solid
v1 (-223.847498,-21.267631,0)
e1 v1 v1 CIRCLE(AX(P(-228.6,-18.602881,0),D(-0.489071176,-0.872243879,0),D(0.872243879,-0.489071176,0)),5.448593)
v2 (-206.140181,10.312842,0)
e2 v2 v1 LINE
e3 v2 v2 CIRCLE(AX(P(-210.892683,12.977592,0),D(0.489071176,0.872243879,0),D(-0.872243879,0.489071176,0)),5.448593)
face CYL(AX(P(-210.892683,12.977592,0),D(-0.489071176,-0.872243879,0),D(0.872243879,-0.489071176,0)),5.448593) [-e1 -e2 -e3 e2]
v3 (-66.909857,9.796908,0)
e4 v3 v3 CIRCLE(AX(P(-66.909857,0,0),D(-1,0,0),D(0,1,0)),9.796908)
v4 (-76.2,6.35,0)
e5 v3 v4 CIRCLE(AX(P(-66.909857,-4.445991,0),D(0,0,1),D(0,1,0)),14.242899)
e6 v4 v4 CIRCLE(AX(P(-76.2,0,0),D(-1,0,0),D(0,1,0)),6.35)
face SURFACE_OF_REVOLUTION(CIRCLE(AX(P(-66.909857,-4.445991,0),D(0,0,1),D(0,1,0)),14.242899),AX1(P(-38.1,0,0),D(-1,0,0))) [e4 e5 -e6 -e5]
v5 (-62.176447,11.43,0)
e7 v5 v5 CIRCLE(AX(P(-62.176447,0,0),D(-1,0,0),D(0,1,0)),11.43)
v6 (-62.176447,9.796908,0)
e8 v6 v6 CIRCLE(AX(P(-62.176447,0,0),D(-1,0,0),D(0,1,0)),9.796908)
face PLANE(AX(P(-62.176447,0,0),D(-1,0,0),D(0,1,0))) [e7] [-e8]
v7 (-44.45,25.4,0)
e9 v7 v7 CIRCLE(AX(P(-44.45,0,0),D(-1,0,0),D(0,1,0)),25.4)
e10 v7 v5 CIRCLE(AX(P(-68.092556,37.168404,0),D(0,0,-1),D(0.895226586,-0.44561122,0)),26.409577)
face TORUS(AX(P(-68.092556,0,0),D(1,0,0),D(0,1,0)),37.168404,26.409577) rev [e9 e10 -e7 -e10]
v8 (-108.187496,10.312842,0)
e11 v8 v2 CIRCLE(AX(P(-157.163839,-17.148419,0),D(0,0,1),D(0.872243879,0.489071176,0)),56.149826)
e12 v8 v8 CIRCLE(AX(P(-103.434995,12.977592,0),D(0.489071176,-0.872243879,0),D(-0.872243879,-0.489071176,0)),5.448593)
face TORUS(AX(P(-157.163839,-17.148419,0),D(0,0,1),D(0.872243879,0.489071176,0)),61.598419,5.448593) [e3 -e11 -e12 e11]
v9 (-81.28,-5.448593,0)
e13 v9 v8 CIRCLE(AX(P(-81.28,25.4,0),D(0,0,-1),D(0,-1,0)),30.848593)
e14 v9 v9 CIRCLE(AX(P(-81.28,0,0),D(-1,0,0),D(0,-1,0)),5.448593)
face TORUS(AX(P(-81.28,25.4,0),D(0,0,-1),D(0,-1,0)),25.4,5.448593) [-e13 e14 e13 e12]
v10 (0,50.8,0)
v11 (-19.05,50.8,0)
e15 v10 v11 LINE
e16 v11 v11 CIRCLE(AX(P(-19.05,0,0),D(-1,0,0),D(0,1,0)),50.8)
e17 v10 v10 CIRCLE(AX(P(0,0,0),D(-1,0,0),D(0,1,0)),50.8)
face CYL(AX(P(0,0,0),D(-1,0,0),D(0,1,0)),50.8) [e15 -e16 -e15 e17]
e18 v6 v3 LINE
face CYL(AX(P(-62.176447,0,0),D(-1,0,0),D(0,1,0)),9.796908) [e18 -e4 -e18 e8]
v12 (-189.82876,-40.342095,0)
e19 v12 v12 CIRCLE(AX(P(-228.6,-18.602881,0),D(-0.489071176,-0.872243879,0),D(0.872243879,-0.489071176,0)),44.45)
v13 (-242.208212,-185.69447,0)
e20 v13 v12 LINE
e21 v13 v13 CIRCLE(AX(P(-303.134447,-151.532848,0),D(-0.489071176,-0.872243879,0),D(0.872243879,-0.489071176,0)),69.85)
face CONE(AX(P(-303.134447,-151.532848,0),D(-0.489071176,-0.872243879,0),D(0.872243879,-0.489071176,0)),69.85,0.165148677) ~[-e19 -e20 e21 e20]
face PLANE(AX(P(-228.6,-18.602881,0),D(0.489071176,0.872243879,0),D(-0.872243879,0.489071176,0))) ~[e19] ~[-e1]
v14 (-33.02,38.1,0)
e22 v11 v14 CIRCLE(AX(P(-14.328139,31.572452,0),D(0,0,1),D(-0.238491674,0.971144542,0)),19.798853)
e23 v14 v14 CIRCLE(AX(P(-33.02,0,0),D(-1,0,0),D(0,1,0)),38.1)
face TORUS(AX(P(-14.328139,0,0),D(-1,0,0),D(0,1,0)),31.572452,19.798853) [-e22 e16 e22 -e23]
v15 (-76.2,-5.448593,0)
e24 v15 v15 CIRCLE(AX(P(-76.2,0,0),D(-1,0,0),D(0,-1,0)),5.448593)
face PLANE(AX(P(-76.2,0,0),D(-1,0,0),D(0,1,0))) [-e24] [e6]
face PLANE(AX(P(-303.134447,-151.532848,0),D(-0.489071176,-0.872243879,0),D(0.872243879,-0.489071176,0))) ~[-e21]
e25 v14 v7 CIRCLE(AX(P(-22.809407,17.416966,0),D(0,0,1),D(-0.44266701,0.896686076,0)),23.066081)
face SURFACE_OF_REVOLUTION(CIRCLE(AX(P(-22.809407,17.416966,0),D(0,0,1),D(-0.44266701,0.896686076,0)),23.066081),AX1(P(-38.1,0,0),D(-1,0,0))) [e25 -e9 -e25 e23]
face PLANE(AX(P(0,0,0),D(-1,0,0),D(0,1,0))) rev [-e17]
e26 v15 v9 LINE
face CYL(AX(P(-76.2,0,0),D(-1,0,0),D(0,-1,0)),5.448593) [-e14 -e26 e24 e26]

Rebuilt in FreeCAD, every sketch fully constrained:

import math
import FreeCAD as App
import Part
import Sketcher

V = App.Vector
Q = App.Units.Quantity


def add_polygon(sketch, points):
    """Adds a closed chain of lines whose ends are joined by coincident constraints."""
    first, n = sketch.GeometryCount, len(points)
    for a, b in zip(points, points[1:] + points[:1]):
        sketch.addGeometry(Part.LineSegment(App.Vector(*a, 0), App.Vector(*b, 0)), False)
    for i in range(n):
        sketch.addConstraint(Sketcher.Constraint("Coincident", first + i, 2, first + (i + 1) % n, 1))

doc = App.newDocument("Part")
body = doc.addObject("PartDesign::Body", "Body")

sketch1 = body.newObject("Sketcher::SketchObject", "Sketch")
sketch1.AttachmentSupport = (doc.getObject("XY_Plane"), [""])
sketch1.MapMode = "FlatFace"
sketch1.addGeometry(Part.LineSegment(V(-76.2, 0, 0), V(0, 0, 0)), False)
sketch1.addGeometry(Part.LineSegment(V(0, 0, 0), V(0, 50.8, 0)), False)
sketch1.addGeometry(Part.LineSegment(V(0, 50.8, 0), V(-19.1, 50.8, 0)), False)
sketch1.addGeometry(Part.ArcOfCircle(Part.Circle(V(-14.3, 31.6, 0), V(0, 0, 1), 19.8), math.radians(104), math.radians(161)), False)
sketch1.addGeometry(Part.ArcOfCircle(Part.Circle(V(-22.8, 17.4, 0), V(0, 0, 1), 23.1), math.radians(116), math.radians(160)), False)
sketch1.addGeometry(Part.ArcOfCircle(Part.Circle(V(-68.1, 37.2, 0), V(0, 0, 1), 26.4), math.radians(-77), math.radians(-26)), False)
sketch1.addGeometry(Part.LineSegment(V(-62.2, 11.4, 0), V(-62.2, 9.8, 0)), False)
sketch1.addGeometry(Part.LineSegment(V(-62.2, 9.8, 0), V(-66.9, 9.8, 0)), False)
sketch1.addGeometry(Part.ArcOfCircle(Part.Circle(V(-66.9, -4.4, 0), V(0, 0, 1), 14.2), math.radians(90), math.radians(131)), False)
sketch1.addGeometry(Part.LineSegment(V(-76.2, 6.3, 0), V(-76.2, 0, 0)), False)
sketch1.addConstraint(Sketcher.Constraint("Coincident", 0, 2, 1, 1))
sketch1.addConstraint(Sketcher.Constraint("Coincident", 1, 2, 2, 1))
sketch1.addConstraint(Sketcher.Constraint("Coincident", 2, 2, 3, 1))
sketch1.addConstraint(Sketcher.Constraint("Coincident", 3, 2, 4, 1))
sketch1.addConstraint(Sketcher.Constraint("Coincident", 4, 2, 5, 2))
sketch1.addConstraint(Sketcher.Constraint("Coincident", 5, 1, 6, 1))
sketch1.addConstraint(Sketcher.Constraint("Coincident", 6, 2, 7, 1))
sketch1.addConstraint(Sketcher.Constraint("Tangent", 7, 2, 8, 1))
sketch1.addConstraint(Sketcher.Constraint("Coincident", 8, 2, 9, 1))
sketch1.addConstraint(Sketcher.Constraint("Coincident", 9, 2, 0, 1))
sketch1.addConstraint(Sketcher.Constraint("Horizontal", 0))
sketch1.addConstraint(Sketcher.Constraint("Vertical", 1))
sketch1.addConstraint(Sketcher.Constraint("Horizontal", 2))
sketch1.addConstraint(Sketcher.Constraint("Vertical", 6))
sketch1.addConstraint(Sketcher.Constraint("Horizontal", 7))
sketch1.addConstraint(Sketcher.Constraint("Vertical", 9))
sketch1.addConstraint(Sketcher.Constraint("Coincident", 0, 2, -1, 1))
sketch1.addConstraint(Sketcher.Constraint("DistanceX", 0, 1, 0, 2, Q("3 in")))
sketch1.addConstraint(Sketcher.Constraint("DistanceY", 1, 1, 1, 2, Q("2 in")))
sketch1.addConstraint(Sketcher.Constraint("DistanceY", -1, 1, 4, 2, Q("1 in")))
sketch1.addConstraint(Sketcher.Constraint("DistanceX", 4, 2, 2, 2, Q("1 in")))
sketch1.addConstraint(Sketcher.Constraint("DistanceX", 2, 2, 2, 1, Q("0.75 in")))
sketch1.addConstraint(Sketcher.Constraint("DistanceY", 9, 2, 9, 1, Q("0.25 in")))
sketch1.addConstraint(Sketcher.Constraint("DistanceX", 3, 2, -1, 1, Q("1.3 in")))
sketch1.addConstraint(Sketcher.Constraint("DistanceY", -1, 1, 3, 2, Q("1.5 in")))
sketch1.addConstraint(Sketcher.Constraint("DistanceY", 8, 2, 5, 1, Q("0.2 in")))
sketch1.addConstraint(Sketcher.Constraint("Radius", 8, 14.242899))
sketch1.addConstraint(Sketcher.Constraint("Radius", 4, 23.066081))
sketch1.addConstraint(Sketcher.Constraint("DistanceX", 3, 3, -1, 1, Q("0.5640999 in")))
sketch1.addConstraint(Sketcher.Constraint("Radius", 5, 26.409577))
sketch1.addConstraint(Sketcher.Constraint("DistanceX", 7, 2, 7, 1, 4.73341))
sketch1.addConstraint(Sketcher.Constraint("DistanceY", 6, 2, 6, 1, 1.633092))
revolution = body.newObject("PartDesign::Revolution", "Revolution")
revolution.Profile = sketch1
revolution.ReferenceAxis = (sketch1, ["H_Axis"])
revolution.Angle = 360

sketch2 = body.newObject("Sketcher::SketchObject", "Sketch001")
sketch2.AttachmentSupport = (doc.getObject("YZ_Plane"), [""])
sketch2.MapMode = "FlatFace"
sketch2.AttachmentOffset = App.Placement(V(0, 0, -3 * 25.4), App.Rotation())
sketch2.addGeometry(Part.Circle(V(0, 0, 0), V(0, 0, 1), 5), False)
sketch2.addConstraint(Sketcher.Constraint("Coincident", 0, 3, -1, 1))
sketch2.addConstraint(Sketcher.Constraint("Diameter", 0, 10.897186))

sketch3 = body.newObject("Sketcher::SketchObject", "Sketch002")
sketch3.AttachmentSupport = (doc.getObject("XY_Plane"), [""])
sketch3.MapMode = "FlatFace"
sketch3.addGeometry(Part.LineSegment(V(-76, 0, 0), V(-81, 0, 0)), False)
sketch3.addGeometry(Part.ArcOfCircle(Part.Circle(V(-81, 25, 0), V(0, 0, 1), 25), math.radians(-151), math.radians(-90)), False)
sketch3.addGeometry(Part.ArcOfCircle(Part.Circle(V(-157, -17, 0), V(0, 0, 1), 62), math.radians(29), math.radians(151)), False)
sketch3.addGeometry(Part.LineSegment(V(-211, 13, 0), V(-229, -19, 0)), False)
sketch3.addConstraint(Sketcher.Constraint("Tangent", 0, 2, 1, 2))
sketch3.addConstraint(Sketcher.Constraint("Tangent", 1, 1, 2, 1))
sketch3.addConstraint(Sketcher.Constraint("Tangent", 2, 2, 3, 1))
sketch3.addConstraint(Sketcher.Constraint("Horizontal", 0))
sketch3.addConstraint(Sketcher.Constraint("PointOnObject", 0, 1, -1))
sketch3.addConstraint(Sketcher.Constraint("Horizontal", 1, 1, 2, 2))
sketch3.addConstraint(Sketcher.Constraint("Radius", 1, Q("1 in")))
sketch3.addConstraint(Sketcher.Constraint("DistanceX", 0, 2, 0, 1, Q("0.2 in")))
sketch3.addConstraint(Sketcher.Constraint("DistanceX", 0, 1, -1, 1, Q("3 in")))
sketch3.addConstraint(Sketcher.Constraint("DistanceX", 3, 2, -1, 1, Q("9 in")))
sketch3.addConstraint(Sketcher.Constraint("Radius", 2, 61.598419))
sketch3.addConstraint(Sketcher.Constraint("DistanceX", 2, 3, -1, 1, 157.163839))
doc.recompute()

additivepipe = body.newObject("PartDesign::AdditivePipe", "AdditivePipe")
additivepipe.Profile = sketch2
additivepipe.Spine = (sketch3, ["Edge1", "Edge2", "Edge3", "Edge4"])

sketch4 = body.newObject("Sketcher::SketchObject", "Sketch003")
sketch4.AttachmentSupport = (doc.getObject("XY_Plane"), [""])
sketch4.MapMode = "FlatFace"
add_polygon(sketch4, [(-190, -40), (-229, -19), (-303, -152), (-242, -186)])
sketch4.addGeometry(Part.LineSegment(V(-229, -19, 0), V(-303, -152, 0)), True)
sketch4.addConstraint(Sketcher.Constraint("Coincident", 4, 1, 0, 2))
sketch4.addConstraint(Sketcher.Constraint("Coincident", 4, 2, 1, 2))
sketch4.addConstraint(Sketcher.Constraint("Perpendicular", 0, 1))
sketch4.addConstraint(Sketcher.Constraint("Perpendicular", 1, 2))
sketch4.addConstraint(Sketcher.Constraint("Distance", 1, Q("6 in")))
sketch4.addConstraint(Sketcher.Constraint("DistanceX", 0, 2, -1, 1, Q("9 in")))
sketch4.addConstraint(Sketcher.Constraint("Distance", 0, Q("1.75 in")))
sketch4.addConstraint(Sketcher.Constraint("Distance", 2, Q("2.75 in")))
sketch4.addConstraint(Sketcher.Constraint("DistanceY", 0, 2, -1, 1, 18.602881))
sketch4.addConstraint(Sketcher.Constraint("DistanceY", 1, 2, -1, 1, 151.532848))
revolution2 = body.newObject("PartDesign::Revolution", "Revolution001")
revolution2.Profile = sketch4
revolution2.ReferenceAxis = (sketch4, ["Axis0"])
revolution2.Angle = 360

doc.recompute()
